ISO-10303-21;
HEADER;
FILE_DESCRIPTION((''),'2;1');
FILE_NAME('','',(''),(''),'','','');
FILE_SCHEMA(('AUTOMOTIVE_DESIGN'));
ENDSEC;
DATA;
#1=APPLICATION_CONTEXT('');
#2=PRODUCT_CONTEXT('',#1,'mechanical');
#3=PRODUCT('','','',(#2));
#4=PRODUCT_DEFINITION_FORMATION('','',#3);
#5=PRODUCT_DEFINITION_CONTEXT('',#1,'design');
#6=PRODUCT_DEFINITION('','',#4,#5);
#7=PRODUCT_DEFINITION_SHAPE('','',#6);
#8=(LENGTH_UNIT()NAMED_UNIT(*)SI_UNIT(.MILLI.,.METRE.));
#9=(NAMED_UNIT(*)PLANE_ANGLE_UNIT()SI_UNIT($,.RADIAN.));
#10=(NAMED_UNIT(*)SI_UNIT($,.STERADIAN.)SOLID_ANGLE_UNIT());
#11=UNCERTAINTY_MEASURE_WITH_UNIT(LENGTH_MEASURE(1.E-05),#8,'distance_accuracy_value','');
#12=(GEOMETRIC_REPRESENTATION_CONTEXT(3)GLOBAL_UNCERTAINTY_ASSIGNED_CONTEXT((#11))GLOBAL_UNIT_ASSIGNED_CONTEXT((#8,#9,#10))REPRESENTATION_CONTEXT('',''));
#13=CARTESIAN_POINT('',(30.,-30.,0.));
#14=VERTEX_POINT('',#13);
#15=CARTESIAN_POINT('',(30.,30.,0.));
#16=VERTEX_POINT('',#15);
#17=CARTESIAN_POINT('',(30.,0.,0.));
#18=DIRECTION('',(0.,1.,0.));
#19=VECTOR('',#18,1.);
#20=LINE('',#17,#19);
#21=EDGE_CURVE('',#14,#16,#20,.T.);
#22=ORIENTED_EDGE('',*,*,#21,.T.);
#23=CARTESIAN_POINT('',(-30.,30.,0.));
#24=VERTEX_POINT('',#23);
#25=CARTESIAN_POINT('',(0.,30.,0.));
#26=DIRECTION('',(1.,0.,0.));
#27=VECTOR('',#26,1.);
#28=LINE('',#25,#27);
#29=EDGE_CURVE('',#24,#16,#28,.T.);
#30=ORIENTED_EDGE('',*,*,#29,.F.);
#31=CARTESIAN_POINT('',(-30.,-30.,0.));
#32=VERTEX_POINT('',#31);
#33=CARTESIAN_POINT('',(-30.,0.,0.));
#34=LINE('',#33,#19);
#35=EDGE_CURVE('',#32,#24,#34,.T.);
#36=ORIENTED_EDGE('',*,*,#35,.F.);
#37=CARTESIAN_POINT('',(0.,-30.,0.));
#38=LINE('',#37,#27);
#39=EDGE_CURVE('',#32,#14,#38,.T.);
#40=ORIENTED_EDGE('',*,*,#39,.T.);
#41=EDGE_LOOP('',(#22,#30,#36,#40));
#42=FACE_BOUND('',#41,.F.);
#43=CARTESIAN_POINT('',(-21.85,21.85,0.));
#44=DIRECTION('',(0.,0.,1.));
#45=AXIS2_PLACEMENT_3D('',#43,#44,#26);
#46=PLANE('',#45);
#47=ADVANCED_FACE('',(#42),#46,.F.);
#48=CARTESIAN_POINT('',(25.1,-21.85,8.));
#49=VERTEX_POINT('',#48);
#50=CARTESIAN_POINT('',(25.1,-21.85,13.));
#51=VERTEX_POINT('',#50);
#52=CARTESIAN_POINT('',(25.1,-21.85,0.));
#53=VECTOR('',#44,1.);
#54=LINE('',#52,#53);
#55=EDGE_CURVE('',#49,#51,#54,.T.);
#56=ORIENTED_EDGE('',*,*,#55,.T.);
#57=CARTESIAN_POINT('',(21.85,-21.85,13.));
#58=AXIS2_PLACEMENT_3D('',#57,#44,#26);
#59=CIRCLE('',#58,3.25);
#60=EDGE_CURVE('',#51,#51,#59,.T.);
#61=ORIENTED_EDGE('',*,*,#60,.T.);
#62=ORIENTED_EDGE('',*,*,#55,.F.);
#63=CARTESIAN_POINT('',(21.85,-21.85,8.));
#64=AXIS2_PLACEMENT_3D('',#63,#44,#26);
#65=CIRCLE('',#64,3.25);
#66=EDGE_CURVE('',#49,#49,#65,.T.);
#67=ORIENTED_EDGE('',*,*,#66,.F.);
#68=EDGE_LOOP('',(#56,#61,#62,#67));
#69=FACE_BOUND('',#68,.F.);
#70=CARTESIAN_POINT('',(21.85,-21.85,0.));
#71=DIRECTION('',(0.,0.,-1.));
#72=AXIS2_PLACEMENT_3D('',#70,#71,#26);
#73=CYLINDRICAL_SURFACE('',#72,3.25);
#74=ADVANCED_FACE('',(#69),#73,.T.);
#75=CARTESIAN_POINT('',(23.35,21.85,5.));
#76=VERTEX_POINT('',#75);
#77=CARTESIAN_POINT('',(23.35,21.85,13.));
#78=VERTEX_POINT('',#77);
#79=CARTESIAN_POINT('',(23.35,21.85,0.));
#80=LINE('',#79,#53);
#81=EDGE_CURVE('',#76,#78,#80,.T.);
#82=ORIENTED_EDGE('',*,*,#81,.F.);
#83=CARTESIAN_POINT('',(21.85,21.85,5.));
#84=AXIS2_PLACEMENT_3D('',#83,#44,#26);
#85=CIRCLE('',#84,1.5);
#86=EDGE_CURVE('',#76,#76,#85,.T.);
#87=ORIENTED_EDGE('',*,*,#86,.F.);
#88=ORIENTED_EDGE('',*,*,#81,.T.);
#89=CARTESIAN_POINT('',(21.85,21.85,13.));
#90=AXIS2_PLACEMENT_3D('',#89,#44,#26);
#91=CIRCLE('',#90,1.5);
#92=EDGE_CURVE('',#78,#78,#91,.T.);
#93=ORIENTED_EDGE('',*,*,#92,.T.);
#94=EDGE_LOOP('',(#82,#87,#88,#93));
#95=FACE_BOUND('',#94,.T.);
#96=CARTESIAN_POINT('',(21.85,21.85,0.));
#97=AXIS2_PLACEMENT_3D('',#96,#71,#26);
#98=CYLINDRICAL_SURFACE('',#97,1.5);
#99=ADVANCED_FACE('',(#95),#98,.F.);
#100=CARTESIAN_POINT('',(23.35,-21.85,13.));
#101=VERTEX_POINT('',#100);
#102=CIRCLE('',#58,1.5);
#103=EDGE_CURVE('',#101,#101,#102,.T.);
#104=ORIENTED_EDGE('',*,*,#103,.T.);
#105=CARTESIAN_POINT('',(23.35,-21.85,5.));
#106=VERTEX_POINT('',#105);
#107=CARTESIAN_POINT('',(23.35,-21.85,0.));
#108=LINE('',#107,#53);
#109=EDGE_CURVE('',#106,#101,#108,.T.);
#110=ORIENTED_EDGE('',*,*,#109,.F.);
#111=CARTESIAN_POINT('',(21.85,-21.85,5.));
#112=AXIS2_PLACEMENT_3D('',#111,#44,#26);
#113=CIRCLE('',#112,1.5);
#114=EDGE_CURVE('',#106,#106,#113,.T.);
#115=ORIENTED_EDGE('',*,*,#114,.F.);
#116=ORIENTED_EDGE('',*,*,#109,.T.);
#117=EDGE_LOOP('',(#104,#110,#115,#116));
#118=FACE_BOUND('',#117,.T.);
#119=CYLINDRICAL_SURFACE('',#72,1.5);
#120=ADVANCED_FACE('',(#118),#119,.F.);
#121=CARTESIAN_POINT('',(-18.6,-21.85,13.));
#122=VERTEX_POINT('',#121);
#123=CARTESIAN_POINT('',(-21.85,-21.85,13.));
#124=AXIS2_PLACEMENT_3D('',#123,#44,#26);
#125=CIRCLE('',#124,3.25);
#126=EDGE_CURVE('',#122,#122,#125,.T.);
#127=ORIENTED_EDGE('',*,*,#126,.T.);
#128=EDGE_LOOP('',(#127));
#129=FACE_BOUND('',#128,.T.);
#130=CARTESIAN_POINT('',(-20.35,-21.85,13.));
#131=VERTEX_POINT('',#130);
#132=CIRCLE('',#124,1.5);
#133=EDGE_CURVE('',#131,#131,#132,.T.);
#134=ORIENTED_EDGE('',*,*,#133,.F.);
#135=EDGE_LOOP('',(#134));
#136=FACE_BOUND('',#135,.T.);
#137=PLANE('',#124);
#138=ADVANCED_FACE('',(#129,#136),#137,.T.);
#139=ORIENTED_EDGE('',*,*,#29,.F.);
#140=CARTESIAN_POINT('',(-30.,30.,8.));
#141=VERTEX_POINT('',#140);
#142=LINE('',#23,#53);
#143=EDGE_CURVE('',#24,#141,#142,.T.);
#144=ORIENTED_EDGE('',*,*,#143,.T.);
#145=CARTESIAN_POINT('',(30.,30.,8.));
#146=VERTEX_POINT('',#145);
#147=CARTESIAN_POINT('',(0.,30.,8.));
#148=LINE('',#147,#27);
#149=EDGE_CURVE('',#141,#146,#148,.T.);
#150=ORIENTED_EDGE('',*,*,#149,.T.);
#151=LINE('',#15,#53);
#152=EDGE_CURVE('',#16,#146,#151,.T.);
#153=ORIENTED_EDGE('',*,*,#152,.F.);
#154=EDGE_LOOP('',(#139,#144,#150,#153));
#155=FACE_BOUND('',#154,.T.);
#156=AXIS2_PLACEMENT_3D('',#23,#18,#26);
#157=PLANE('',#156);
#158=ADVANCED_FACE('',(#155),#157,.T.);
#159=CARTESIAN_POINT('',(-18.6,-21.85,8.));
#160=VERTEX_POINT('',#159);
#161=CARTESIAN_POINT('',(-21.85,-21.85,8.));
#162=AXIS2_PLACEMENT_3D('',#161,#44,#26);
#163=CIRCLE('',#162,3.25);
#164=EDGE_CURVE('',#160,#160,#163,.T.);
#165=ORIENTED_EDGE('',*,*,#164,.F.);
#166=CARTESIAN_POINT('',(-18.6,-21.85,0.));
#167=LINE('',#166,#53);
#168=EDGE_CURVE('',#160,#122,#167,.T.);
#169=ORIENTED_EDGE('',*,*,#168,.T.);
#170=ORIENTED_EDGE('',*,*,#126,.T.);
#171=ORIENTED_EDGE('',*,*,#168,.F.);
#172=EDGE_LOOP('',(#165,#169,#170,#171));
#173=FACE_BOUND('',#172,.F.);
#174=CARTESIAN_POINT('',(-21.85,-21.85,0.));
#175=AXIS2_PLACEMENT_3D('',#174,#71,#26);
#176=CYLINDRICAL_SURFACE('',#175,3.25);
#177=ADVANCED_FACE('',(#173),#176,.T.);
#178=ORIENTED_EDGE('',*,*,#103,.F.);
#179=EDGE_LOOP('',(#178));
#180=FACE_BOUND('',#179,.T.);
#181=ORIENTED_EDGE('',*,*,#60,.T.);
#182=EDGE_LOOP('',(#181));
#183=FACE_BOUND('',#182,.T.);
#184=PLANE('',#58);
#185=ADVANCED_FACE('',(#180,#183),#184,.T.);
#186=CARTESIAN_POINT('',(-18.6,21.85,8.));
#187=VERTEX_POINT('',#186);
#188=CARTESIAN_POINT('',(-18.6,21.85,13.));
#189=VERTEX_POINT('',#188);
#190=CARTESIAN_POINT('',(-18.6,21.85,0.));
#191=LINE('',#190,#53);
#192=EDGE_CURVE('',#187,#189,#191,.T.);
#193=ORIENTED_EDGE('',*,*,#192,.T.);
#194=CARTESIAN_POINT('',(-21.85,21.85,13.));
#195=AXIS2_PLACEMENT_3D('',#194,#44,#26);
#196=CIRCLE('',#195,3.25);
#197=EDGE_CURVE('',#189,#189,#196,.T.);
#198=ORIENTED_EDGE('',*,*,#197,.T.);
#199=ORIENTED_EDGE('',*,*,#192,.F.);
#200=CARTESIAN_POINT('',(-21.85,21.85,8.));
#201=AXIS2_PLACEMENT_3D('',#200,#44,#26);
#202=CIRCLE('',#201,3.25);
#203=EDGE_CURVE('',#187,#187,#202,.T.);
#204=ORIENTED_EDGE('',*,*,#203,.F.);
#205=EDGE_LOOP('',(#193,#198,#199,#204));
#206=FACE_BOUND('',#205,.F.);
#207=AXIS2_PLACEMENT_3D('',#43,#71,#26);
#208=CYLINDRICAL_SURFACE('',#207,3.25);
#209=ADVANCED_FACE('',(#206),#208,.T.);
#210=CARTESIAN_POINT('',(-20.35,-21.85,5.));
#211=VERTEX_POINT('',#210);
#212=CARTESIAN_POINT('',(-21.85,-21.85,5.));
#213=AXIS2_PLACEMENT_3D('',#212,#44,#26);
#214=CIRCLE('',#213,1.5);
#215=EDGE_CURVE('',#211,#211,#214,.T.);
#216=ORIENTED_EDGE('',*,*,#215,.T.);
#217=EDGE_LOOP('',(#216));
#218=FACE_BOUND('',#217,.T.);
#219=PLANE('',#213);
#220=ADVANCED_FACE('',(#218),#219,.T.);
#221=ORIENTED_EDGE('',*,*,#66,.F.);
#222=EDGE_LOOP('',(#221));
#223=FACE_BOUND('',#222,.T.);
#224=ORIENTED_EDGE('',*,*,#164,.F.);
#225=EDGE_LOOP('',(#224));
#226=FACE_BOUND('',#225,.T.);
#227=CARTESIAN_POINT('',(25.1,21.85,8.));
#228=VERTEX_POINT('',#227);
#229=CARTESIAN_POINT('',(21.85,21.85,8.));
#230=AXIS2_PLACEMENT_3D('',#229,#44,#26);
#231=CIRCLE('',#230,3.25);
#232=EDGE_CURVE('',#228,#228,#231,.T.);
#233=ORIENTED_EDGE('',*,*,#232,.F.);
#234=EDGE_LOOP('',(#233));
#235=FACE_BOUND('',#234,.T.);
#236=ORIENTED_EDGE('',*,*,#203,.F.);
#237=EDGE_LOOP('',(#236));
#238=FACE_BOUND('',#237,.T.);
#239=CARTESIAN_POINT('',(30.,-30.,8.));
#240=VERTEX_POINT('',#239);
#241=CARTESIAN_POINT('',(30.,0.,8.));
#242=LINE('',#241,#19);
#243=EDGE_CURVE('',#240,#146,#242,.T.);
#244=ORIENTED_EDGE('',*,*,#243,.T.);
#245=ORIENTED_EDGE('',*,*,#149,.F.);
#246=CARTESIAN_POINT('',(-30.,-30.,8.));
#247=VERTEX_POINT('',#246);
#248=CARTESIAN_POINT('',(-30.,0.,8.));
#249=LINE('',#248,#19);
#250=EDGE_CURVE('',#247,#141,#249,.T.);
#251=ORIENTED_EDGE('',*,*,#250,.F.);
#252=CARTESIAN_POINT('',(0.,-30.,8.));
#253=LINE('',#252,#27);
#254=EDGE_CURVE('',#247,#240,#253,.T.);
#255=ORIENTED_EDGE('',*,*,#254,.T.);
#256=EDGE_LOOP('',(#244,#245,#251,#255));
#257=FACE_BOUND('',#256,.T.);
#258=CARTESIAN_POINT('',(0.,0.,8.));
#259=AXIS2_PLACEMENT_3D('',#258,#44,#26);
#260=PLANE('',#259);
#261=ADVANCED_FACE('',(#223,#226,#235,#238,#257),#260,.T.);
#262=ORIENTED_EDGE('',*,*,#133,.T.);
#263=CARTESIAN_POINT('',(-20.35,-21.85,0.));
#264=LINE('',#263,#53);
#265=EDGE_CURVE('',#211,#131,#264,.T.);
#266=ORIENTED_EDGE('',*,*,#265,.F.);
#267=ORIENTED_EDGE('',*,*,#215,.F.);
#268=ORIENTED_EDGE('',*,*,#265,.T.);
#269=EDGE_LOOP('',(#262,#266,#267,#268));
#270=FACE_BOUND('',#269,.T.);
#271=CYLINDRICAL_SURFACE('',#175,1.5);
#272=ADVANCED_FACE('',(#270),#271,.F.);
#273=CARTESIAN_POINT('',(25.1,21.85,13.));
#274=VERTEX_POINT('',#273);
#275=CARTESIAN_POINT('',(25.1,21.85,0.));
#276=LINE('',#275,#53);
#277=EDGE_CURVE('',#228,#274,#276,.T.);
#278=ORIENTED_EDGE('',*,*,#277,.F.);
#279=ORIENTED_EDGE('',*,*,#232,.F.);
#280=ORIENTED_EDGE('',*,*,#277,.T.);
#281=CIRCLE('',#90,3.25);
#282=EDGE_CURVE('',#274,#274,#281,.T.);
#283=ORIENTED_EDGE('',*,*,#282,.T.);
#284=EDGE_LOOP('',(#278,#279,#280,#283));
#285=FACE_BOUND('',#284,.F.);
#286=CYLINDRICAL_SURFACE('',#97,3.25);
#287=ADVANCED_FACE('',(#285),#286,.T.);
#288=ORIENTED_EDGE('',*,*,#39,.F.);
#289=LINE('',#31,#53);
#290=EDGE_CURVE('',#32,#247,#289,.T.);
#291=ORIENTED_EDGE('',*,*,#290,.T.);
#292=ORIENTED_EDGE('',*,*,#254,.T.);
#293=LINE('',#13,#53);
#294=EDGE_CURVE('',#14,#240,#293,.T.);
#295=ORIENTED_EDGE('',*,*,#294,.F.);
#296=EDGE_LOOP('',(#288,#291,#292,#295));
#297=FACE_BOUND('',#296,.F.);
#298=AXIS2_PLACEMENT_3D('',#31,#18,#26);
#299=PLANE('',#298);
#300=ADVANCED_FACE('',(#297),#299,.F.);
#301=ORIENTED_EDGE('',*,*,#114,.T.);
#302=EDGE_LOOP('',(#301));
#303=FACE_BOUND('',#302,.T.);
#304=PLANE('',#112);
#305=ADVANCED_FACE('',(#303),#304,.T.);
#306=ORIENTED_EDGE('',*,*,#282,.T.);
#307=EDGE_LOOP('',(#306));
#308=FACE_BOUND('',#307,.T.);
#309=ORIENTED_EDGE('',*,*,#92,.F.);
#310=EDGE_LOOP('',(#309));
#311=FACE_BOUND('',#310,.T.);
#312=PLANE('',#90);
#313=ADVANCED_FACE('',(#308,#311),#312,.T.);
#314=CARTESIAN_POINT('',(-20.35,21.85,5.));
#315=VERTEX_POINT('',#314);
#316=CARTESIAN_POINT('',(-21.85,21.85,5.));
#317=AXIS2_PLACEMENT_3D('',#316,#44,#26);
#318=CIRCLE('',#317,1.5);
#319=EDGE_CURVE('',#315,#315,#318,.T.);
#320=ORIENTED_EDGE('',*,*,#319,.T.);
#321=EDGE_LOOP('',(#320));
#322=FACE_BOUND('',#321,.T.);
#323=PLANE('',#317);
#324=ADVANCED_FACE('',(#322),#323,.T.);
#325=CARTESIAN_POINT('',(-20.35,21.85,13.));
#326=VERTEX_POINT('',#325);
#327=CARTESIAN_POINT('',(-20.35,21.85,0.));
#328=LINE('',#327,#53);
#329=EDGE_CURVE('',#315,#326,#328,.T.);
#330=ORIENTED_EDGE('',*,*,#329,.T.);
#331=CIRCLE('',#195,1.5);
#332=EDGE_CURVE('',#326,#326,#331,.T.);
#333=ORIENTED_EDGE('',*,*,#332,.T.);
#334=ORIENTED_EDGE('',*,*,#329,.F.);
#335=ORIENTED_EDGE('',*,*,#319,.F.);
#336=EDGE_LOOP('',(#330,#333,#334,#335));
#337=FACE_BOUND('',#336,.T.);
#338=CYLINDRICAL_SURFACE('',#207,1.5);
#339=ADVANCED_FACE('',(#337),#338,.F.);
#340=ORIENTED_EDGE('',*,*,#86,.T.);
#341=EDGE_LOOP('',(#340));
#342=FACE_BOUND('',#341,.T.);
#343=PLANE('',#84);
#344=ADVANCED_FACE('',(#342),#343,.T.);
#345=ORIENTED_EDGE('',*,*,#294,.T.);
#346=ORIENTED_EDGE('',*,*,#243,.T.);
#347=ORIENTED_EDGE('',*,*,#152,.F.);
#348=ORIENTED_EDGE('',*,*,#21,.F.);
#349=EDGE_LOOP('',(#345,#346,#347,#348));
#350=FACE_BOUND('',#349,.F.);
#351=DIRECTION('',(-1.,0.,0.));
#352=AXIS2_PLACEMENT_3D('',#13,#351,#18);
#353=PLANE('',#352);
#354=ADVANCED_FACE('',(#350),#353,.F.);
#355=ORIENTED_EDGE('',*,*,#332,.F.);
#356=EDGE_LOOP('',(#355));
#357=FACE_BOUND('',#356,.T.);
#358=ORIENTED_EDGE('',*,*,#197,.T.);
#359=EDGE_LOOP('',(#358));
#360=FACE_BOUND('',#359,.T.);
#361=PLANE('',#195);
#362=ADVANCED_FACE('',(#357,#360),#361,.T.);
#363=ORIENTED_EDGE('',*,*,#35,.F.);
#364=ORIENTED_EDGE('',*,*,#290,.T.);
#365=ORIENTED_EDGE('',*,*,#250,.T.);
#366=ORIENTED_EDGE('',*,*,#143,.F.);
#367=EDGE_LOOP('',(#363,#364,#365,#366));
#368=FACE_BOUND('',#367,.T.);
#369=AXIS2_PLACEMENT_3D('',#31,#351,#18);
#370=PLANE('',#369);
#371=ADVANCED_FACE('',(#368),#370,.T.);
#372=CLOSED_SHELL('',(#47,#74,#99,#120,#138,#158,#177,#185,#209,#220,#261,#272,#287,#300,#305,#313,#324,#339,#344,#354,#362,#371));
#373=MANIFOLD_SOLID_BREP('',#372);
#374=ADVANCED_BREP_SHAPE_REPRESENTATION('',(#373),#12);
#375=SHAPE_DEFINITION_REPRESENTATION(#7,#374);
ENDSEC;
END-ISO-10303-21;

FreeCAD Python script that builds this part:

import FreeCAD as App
import Part
import Sketcher
from FreeCAD import Vector
Q = App.Units.Quantity

doc = App.newDocument("Part")
body = doc.addObject("PartDesign::Body", "Body")

# Sketch on XY plane
sketch1 = body.newObject("Sketcher::SketchObject", "Sketch")
sketch1.AttachmentSupport = (doc.getObject("XY_Plane"), [""])
sketch1.MapMode = "FlatFace"
sketch1.addGeometry(Part.LineSegment(Vector(-30, 30, 0), Vector(-30, -30, 0)), False)
sketch1.addGeometry(Part.LineSegment(Vector(-30, -30, 0), Vector(30, -30, 0)), False)
sketch1.addGeometry(Part.LineSegment(Vector(30, -30, 0), Vector(30, 30, 0)), False)
sketch1.addGeometry(Part.LineSegment(Vector(30, 30, 0), Vector(-30, 30, 0)), False)
sketch1.addGeometry(Part.Circle(Vector(-21.85, -21.85, 0), Vector(0, 0, 1), 3.25), False)
sketch1.addGeometry(Part.Circle(Vector(21.85, -21.85, 0), Vector(0, 0, 1), 3.25), False)
sketch1.addGeometry(Part.Circle(Vector(-21.85, 21.85, 0), Vector(0, 0, 1), 3.25), False)
sketch1.addGeometry(Part.Circle(Vector(21.85, 21.85, 0), Vector(0, 0, 1), 3.25), False)
sketch1.addConstraint(Sketcher.Constraint("Coincident", 0, 2, 1, 1))
sketch1.addConstraint(Sketcher.Constraint("Coincident", 1, 2, 2, 1))
sketch1.addConstraint(Sketcher.Constraint("Coincident", 2, 2, 3, 1))
sketch1.addConstraint(Sketcher.Constraint("Coincident", 3, 2, 0, 1))
sketch1.addConstraint(Sketcher.Constraint("Vertical", 0))
sketch1.addConstraint(Sketcher.Constraint("Horizontal", 1))
sketch1.addConstraint(Sketcher.Constraint("Vertical", 2))
sketch1.addConstraint(Sketcher.Constraint("Horizontal", 3))
sketch1.addConstraint(Sketcher.Constraint("Equal", 4, 5))
sketch1.addConstraint(Sketcher.Constraint("Equal", 5, 6))
sketch1.addConstraint(Sketcher.Constraint("Equal", 6, 7))
sketch1.addConstraint(Sketcher.Constraint("Symmetric", 5, 3, 6, 3, -1, 1))
sketch1.addConstraint(Sketcher.Constraint("Symmetric", 4, 3, 7, 3, -1, 1))
sketch1.addConstraint(Sketcher.Constraint("Symmetric", 0, 2, 2, 2, -1, 1))
sketch1.addConstraint(Sketcher.Constraint("Symmetric", 4, 3, 5, 3, -2))
sketch1.addConstraint(Sketcher.Constraint("Equal", 3, 0))
sketch1.addConstraint(Sketcher.Constraint("Diameter", 4, Q("6.5 mm")))
sketch1.addConstraint(Sketcher.Constraint("DistanceX", 1, 1, 1, 2, Q("60 mm")))
sketch1.addConstraint(Sketcher.Constraint("DistanceX", 4, 3, 5, 3, Q("43.7 mm")))
sketch1.addConstraint(Sketcher.Constraint("DistanceY", 4, 3, 6, 3, Q("43.7 mm")))
pad1 = body.newObject("PartDesign::Pad", "Pad")
pad1.Profile = sketch1
pad1.Length = 8

# Sketch on XY plane
sketch2 = body.newObject("Sketcher::SketchObject", "Sketch001")
sketch2.AttachmentSupport = (doc.getObject("XY_Plane"), [""])
sketch2.MapMode = "FlatFace"
sketch2.addGeometry(Part.Circle(Vector(-21.85, 21.85, 0), Vector(0, 0, 1), 3.25), False)
sketch2.addGeometry(Part.Circle(Vector(-21.85, 21.85, 0), Vector(0, 0, 1), 1.5), False)
sketch2.addGeometry(Part.Circle(Vector(21.85, 21.85, 0), Vector(0, 0, 1), 3.25), False)
sketch2.addGeometry(Part.Circle(Vector(21.85, 21.85, 0), Vector(0, 0, 1), 1.5), False)
sketch2.addGeometry(Part.Circle(Vector(-21.85, -21.85, 0), Vector(0, 0, 1), 3.25), False)
sketch2.addGeometry(Part.Circle(Vector(-21.85, -21.85, 0), Vector(0, 0, 1), 1.5), False)
sketch2.addGeometry(Part.Circle(Vector(21.85, -21.85, 0), Vector(0, 0, 1), 3.25), False)
sketch2.addGeometry(Part.Circle(Vector(21.85, -21.85, 0), Vector(0, 0, 1), 1.5), False)
sketch2.addConstraint(Sketcher.Constraint("Coincident", 1, 3, 0, 3))
sketch2.addConstraint(Sketcher.Constraint("Coincident", 3, 3, 2, 3))
sketch2.addConstraint(Sketcher.Constraint("Coincident", 5, 3, 4, 3))
sketch2.addConstraint(Sketcher.Constraint("Coincident", 7, 3, 6, 3))
sketch2.addConstraint(Sketcher.Constraint("Equal", 0, 2))
sketch2.addConstraint(Sketcher.Constraint("Equal", 1, 3))
sketch2.addConstraint(Sketcher.Constraint("Equal", 2, 4))
sketch2.addConstraint(Sketcher.Constraint("Equal", 3, 5))
sketch2.addConstraint(Sketcher.Constraint("Equal", 4, 6))
sketch2.addConstraint(Sketcher.Constraint("Equal", 5, 7))
sketch2.addConstraint(Sketcher.Constraint("Symmetric", 2, 3, 4, 3, -1, 1))
sketch2.addConstraint(Sketcher.Constraint("Symmetric", 0, 3, 6, 3, -1, 1))
sketch2.addConstraint(Sketcher.Constraint("Symmetric", 0, 3, 2, 3, -2))
sketch2.addConstraint(Sketcher.Constraint("Diameter", 1, Q("3 mm")))
sketch2.addConstraint(Sketcher.Constraint("Diameter", 0, Q("6.5 mm")))
sketch2.addConstraint(Sketcher.Constraint("DistanceX", 0, 3, 2, 3, Q("43.7 mm")))
sketch2.addConstraint(Sketcher.Constraint("DistanceY", 4, 3, 0, 3, Q("43.7 mm")))
pad2 = body.newObject("PartDesign::Pad", "Pad001")
pad2.Profile = sketch2
pad2.Length = 13

# Sketch on XY plane
sketch3 = body.newObject("Sketcher::SketchObject", "Sketch002")
sketch3.AttachmentSupport = (doc.getObject("XY_Plane"), [""])
sketch3.MapMode = "FlatFace"
sketch3.addGeometry(Part.Circle(Vector(-21.85, 21.85, 0), Vector(0, 0, 1), 1.5), False)
sketch3.addGeometry(Part.Circle(Vector(21.85, 21.85, 0), Vector(0, 0, 1), 1.5), False)
sketch3.addGeometry(Part.Circle(Vector(-21.85, -21.85, 0), Vector(0, 0, 1), 1.5), False)
sketch3.addGeometry(Part.Circle(Vector(21.85, -21.85, 0), Vector(0, 0, 1), 1.5), False)
sketch3.addConstraint(Sketcher.Constraint("Equal", 0, 1))
sketch3.addConstraint(Sketcher.Constraint("Equal", 1, 2))
sketch3.addConstraint(Sketcher.Constraint("Equal", 2, 3))
sketch3.addConstraint(Sketcher.Constraint("Symmetric", 1, 3, 2, 3, -1, 1))
sketch3.addConstraint(Sketcher.Constraint("Symmetric", 0, 3, 3, 3, -1, 1))
sketch3.addConstraint(Sketcher.Constraint("Symmetric", 0, 3, 1, 3, -2))
sketch3.addConstraint(Sketcher.Constraint("Diameter", 0, Q("3 mm")))
sketch3.addConstraint(Sketcher.Constraint("DistanceX", 0, 3, 1, 3, Q("43.7 mm")))
sketch3.addConstraint(Sketcher.Constraint("DistanceY", 2, 3, 0, 3, Q("43.7 mm")))
pad3 = body.newObject("PartDesign::Pad", "Pad002")
pad3.Profile = sketch3
pad3.Length = 5

doc.recompute()
